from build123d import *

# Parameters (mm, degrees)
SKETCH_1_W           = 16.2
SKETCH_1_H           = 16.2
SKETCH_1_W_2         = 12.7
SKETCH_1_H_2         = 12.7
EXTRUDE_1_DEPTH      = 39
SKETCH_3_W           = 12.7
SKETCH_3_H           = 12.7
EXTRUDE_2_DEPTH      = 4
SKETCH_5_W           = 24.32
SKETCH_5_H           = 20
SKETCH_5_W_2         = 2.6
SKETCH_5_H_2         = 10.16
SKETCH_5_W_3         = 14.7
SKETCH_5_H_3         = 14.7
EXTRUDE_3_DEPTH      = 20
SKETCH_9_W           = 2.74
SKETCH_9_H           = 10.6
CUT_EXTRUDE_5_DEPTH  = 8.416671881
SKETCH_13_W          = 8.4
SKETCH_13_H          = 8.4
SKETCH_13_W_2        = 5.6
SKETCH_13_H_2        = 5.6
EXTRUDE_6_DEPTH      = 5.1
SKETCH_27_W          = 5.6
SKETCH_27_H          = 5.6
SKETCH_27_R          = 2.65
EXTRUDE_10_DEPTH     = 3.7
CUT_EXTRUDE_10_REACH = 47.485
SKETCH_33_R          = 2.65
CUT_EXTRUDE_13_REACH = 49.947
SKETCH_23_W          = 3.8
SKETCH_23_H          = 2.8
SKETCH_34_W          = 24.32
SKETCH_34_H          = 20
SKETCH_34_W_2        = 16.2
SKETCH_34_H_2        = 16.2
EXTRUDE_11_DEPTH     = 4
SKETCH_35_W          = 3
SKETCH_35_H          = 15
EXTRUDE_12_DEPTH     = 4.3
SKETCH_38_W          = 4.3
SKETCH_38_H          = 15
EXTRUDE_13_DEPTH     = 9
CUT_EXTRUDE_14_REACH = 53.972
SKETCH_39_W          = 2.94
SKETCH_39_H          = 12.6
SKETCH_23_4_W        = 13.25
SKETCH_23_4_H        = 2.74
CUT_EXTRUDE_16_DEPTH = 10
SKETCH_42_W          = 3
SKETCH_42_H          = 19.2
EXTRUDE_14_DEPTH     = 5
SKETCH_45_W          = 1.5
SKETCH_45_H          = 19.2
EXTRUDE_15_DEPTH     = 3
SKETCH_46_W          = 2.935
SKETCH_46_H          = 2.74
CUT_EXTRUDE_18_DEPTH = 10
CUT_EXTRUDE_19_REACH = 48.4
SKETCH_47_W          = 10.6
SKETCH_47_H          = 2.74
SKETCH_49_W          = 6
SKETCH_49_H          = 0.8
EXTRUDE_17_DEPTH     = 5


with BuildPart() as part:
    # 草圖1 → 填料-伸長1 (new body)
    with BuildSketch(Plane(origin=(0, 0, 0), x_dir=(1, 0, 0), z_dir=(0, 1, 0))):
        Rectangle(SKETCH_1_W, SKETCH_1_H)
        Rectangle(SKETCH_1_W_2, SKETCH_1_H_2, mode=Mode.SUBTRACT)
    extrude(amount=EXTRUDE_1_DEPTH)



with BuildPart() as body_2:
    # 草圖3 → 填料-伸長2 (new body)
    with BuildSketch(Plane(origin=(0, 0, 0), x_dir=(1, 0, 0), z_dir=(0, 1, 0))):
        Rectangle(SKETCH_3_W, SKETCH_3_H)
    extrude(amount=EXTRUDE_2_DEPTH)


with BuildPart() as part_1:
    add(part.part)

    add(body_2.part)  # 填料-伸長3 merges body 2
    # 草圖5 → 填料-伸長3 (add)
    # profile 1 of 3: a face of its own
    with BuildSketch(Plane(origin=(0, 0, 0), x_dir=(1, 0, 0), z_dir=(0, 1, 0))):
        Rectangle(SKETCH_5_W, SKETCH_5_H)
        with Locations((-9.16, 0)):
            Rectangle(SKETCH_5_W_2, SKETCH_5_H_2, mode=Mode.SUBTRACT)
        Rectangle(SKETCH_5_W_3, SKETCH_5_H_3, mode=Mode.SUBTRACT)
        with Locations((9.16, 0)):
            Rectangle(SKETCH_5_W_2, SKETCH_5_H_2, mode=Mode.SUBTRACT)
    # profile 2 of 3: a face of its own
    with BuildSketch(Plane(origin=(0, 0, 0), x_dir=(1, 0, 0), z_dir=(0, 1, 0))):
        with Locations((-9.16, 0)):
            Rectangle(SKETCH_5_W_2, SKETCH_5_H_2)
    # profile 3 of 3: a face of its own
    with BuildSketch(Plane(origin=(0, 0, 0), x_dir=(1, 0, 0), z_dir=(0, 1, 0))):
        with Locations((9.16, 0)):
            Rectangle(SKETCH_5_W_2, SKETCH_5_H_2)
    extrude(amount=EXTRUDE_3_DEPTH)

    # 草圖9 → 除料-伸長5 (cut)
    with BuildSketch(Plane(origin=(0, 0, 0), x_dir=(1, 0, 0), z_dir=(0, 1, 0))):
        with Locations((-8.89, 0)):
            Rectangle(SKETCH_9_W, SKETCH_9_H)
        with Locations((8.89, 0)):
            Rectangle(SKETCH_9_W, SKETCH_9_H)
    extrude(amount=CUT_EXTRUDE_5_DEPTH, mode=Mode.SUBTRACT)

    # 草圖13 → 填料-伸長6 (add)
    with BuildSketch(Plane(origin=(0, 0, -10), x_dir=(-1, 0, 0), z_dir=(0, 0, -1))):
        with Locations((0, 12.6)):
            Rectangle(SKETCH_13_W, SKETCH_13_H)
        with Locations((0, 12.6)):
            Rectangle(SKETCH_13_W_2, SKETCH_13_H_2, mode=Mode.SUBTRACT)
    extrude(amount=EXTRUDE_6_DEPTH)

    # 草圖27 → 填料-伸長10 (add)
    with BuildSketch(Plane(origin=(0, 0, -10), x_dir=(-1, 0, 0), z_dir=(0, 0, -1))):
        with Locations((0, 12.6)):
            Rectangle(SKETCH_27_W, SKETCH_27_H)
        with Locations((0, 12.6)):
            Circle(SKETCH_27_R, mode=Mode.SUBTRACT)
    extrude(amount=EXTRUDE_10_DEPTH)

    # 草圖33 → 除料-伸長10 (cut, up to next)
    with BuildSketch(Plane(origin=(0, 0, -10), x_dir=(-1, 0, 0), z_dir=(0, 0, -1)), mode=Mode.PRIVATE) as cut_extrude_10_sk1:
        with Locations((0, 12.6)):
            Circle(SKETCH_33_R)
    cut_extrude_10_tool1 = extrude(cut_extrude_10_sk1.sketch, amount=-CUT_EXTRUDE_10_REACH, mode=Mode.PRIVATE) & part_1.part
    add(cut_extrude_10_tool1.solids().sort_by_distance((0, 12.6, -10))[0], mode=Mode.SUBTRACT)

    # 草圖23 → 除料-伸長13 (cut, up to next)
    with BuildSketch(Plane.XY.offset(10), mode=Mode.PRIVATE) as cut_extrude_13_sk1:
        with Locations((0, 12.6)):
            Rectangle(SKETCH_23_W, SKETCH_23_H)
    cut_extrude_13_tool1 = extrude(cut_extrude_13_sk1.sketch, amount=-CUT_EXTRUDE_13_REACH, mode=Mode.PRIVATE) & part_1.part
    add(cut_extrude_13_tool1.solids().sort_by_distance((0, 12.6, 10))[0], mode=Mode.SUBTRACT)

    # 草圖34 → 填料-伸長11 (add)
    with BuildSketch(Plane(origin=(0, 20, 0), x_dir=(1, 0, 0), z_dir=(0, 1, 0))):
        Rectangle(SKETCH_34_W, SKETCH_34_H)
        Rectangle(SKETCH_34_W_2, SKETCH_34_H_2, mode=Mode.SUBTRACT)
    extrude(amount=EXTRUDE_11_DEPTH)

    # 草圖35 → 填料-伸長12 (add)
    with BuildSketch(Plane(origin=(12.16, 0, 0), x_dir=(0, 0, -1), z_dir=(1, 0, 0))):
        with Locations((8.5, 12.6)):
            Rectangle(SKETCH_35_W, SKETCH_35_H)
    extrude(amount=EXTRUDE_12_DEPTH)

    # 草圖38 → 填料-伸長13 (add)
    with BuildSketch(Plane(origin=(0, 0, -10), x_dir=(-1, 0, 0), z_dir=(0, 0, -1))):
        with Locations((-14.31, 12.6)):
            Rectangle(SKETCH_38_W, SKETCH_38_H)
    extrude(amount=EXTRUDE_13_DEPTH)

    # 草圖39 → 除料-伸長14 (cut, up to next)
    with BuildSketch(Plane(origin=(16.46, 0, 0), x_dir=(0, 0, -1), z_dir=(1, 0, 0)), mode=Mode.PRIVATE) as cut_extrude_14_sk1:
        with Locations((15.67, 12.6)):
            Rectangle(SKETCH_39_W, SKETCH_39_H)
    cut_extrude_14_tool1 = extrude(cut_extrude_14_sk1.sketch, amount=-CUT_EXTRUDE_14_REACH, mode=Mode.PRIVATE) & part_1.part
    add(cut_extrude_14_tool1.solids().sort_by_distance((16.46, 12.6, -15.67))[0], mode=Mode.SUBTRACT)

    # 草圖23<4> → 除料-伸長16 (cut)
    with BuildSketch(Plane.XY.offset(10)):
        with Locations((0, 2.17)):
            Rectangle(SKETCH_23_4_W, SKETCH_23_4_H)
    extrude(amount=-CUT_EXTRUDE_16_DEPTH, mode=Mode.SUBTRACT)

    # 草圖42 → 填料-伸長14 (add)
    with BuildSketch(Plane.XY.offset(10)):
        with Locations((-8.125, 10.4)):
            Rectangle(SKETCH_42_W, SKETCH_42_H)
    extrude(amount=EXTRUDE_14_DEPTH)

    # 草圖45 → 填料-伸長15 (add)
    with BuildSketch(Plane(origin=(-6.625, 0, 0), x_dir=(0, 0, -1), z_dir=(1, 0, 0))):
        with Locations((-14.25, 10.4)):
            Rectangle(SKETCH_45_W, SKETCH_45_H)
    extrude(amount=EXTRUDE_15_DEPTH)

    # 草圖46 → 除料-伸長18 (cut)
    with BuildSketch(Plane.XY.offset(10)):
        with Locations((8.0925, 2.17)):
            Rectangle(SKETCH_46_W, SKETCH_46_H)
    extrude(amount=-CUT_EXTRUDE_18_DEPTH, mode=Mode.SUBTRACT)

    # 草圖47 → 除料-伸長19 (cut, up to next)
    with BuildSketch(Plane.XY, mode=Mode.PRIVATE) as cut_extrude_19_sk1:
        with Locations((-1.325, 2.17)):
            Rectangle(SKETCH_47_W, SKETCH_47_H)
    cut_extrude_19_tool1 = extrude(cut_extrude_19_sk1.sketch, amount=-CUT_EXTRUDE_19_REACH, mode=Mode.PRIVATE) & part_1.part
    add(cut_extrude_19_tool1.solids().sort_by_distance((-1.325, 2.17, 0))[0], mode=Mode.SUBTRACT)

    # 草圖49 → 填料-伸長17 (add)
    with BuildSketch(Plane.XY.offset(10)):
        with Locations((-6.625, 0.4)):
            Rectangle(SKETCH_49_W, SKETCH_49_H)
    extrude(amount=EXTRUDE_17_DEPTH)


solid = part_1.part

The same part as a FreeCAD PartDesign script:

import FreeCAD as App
import Part
import Sketcher
from FreeCAD import Vector
Q = App.Units.Quantity


def add_polygon(sketch, points):
    """Adds a closed chain of lines whose ends are joined by coincident constraints."""
    first, n = sketch.GeometryCount, len(points)
    for a, b in zip(points, points[1:] + points[:1]):
        sketch.addGeometry(Part.LineSegment(App.Vector(*a, 0), App.Vector(*b, 0)), False)
    for i in range(n):
        sketch.addConstraint(Sketcher.Constraint("Coincident", first + i, 2, first + (i + 1) % n, 1))

doc = App.newDocument("Part")
body = doc.addObject("PartDesign::Body", "Body")

sketch1 = doc.addObject("Sketcher::SketchObject", "Sketch")
body.addObject(sketch1)
sketch1.AttachmentSupport = (doc.XZ_Plane, [""])
sketch1.MapMode = "FlatFace"
add_polygon(sketch1, [(-8.1, -8.1), (-8.1, 8.1), (8.1, 8.1), (8.1, -8.1)])
add_polygon(sketch1, [(6.35, 6.35), (-6.35, 6.35), (-6.35, -6.35), (6.35, -6.35)])
sketch1.addConstraint(Sketcher.Constraint("Vertical", 0))
sketch1.addConstraint(Sketcher.Constraint("Horizontal", 1))
sketch1.addConstraint(Sketcher.Constraint("Vertical", 2))
sketch1.addConstraint(Sketcher.Constraint("Horizontal", 3))
sketch1.addConstraint(Sketcher.Constraint("Horizontal", 4))
sketch1.addConstraint(Sketcher.Constraint("Vertical", 5))
sketch1.addConstraint(Sketcher.Constraint("Horizontal", 6))
sketch1.addConstraint(Sketcher.Constraint("Vertical", 7))
sketch1.addConstraint(Sketcher.Constraint("Symmetric", 0, 2, 2, 2, -1, 1))
sketch1.addConstraint(Sketcher.Constraint("Symmetric", 4, 2, 6, 2, -1, 1))
sketch1.addConstraint(Sketcher.Constraint("Equal", 3, 0))
sketch1.addConstraint(Sketcher.Constraint("Equal", 6, 5))
sketch1.addConstraint(Sketcher.Constraint("DistanceX", 1, 1, 1, 2, Q("16.2 mm")))
sketch1.addConstraint(Sketcher.Constraint("DistanceX", 4, 2, 4, 1, Q("12.7 mm")))
pad1 = doc.addObject("PartDesign::Pad", "Pad")
body.addObject(pad1)
pad1.Profile = sketch1
pad1.Length = 39
pad1.Reversed = True
body2 = doc.addObject("PartDesign::Body", "Body001")

sketch2 = doc.addObject("Sketcher::SketchObject", "Sketch001")
body2.addObject(sketch2)
sketch2.AttachmentSupport = (doc.getObject("XZ_Plane001"), [""])
sketch2.MapMode = "FlatFace"
add_polygon(sketch2, [(-6.35, -6.35), (-6.35, 6.35), (6.35, 6.35), (6.35, -6.35)])
sketch2.addConstraint(Sketcher.Constraint("Vertical", 0))
sketch2.addConstraint(Sketcher.Constraint("Horizontal", 1))
sketch2.addConstraint(Sketcher.Constraint("Vertical", 2))
sketch2.addConstraint(Sketcher.Constraint("Horizontal", 3))
sketch2.addConstraint(Sketcher.Constraint("Symmetric", 0, 2, 2, 2, -1, 1))
sketch2.addConstraint(Sketcher.Constraint("Equal", 3, 0))
sketch2.addConstraint(Sketcher.Constraint("DistanceX", 1, 1, 1, 2, Q("12.7 mm")))
pad2 = doc.addObject("PartDesign::Pad", "Pad001")
body2.addObject(pad2)
pad2.Profile = sketch2
pad2.Length = 4
pad2.Reversed = True
doc.recompute()

boolean = doc.addObject("PartDesign::Boolean", "Boolean")
body.addObject(boolean)
boolean.Type = "Fuse"
boolean.addObjects([body2])

sketch3 = doc.addObject("Sketcher::SketchObject", "Sketch002")
body.addObject(sketch3)
sketch3.AttachmentSupport = (doc.XZ_Plane, [""])
sketch3.MapMode = "FlatFace"
add_polygon(sketch3, [(-12.16, -10), (-12.16, 10), (12.16, 10), (12.16, -10)])
add_polygon(sketch3, [(7.35, 7.35), (-7.35, 7.35), (-7.35, -7.35), (7.35, -7.35)])
sketch3.addConstraint(Sketcher.Constraint("Vertical", 0))
sketch3.addConstraint(Sketcher.Constraint("Horizontal", 1))
sketch3.addConstraint(Sketcher.Constraint("Vertical", 2))
sketch3.addConstraint(Sketcher.Constraint("Horizontal", 3))
sketch3.addConstraint(Sketcher.Constraint("Horizontal", 4))
sketch3.addConstraint(Sketcher.Constraint("Vertical", 5))
sketch3.addConstraint(Sketcher.Constraint("Horizontal", 6))
sketch3.addConstraint(Sketcher.Constraint("Vertical", 7))
sketch3.addConstraint(Sketcher.Constraint("Symmetric", 0, 2, 2, 2, -1, 1))
sketch3.addConstraint(Sketcher.Constraint("Symmetric", 4, 2, 6, 2, -1, 1))
sketch3.addConstraint(Sketcher.Constraint("Equal", 6, 5))
sketch3.addConstraint(Sketcher.Constraint("DistanceY", 0, 1, 0, 2, Q("20 mm")))
sketch3.addConstraint(Sketcher.Constraint("DistanceX", 4, 2, 4, 1, Q("14.7 mm")))
sketch3.addConstraint(Sketcher.Constraint("DistanceX", 1, 1, 1, 2, Q("24.32 mm")))
pad3 = doc.addObject("PartDesign::Pad", "Pad002")
body.addObject(pad3)
pad3.Profile = sketch3
pad3.Length = 20
pad3.Reversed = True

sketch4 = doc.addObject("Sketcher::SketchObject", "Sketch003")
body.addObject(sketch4)
sketch4.AttachmentSupport = (doc.XZ_Plane, [""])
sketch4.MapMode = "FlatFace"
add_polygon(sketch4, [(-10.26, -5.3), (-10.26, 5.3), (-7.52, 5.3), (-7.52, -5.3)])
add_polygon(sketch4, [(7.52, -5.3), (7.52, 5.3), (10.26, 5.3), (10.26, -5.3)])
sketch4.addConstraint(Sketcher.Constraint("Vertical", 0))
sketch4.addConstraint(Sketcher.Constraint("Horizontal", 1))
sketch4.addConstraint(Sketcher.Constraint("Vertical", 2))
sketch4.addConstraint(Sketcher.Constraint("Horizontal", 3))
sketch4.addConstraint(Sketcher.Constraint("Vertical", 4))
sketch4.addConstraint(Sketcher.Constraint("Horizontal", 5))
sketch4.addConstraint(Sketcher.Constraint("Vertical", 6))
sketch4.addConstraint(Sketcher.Constraint("Horizontal", 7))
sketch4.addConstraint(Sketcher.Constraint("Symmetric", 2, 2, 4, 2, -1, 1))
sketch4.addConstraint(Sketcher.Constraint("Symmetric", 0, 2, 6, 2, -1, 1))
sketch4.addConstraint(Sketcher.Constraint("Horizontal", 1, 2, 4, 2))
sketch4.addConstraint(Sketcher.Constraint("DistanceY", 0, 1, 0, 2, Q("10.6 mm")))
sketch4.addConstraint(Sketcher.Constraint("DistanceX", 1, 1, 1, 2, Q("2.74 mm")))
sketch4.addConstraint(Sketcher.Constraint("DistanceX", 0, 2, -1, 1, Q("10.26 mm")))
pocket1 = doc.addObject("PartDesign::Pocket", "Pocket")
body.addObject(pocket1)
pocket1.Profile = sketch4
pocket1.Length = 8.416672

sketch5 = doc.addObject("Sketcher::SketchObject", "Sketch004")
body.addObject(sketch5)
sketch5.AttachmentSupport = (doc.XY_Plane, [""])
sketch5.MapMode = "FlatFace"
sketch5.AttachmentOffset = App.Placement(Vector(0, 0, -10), App.Rotation())
add_polygon(sketch5, [(4.2, 16.8), (4.2, 8.4), (-4.2, 8.4), (-4.2, 16.8)])
add_polygon(sketch5, [(-2.8, 9.8), (2.8, 9.8), (2.8, 15.4), (-2.8, 15.4)])
sketch5.addConstraint(Sketcher.Constraint("Vertical", 0))
sketch5.addConstraint(Sketcher.Constraint("Horizontal", 1))
sketch5.addConstraint(Sketcher.Constraint("Vertical", 2))
sketch5.addConstraint(Sketcher.Constraint("Horizontal", 3))
sketch5.addConstraint(Sketcher.Constraint("Horizontal", 4))
sketch5.addConstraint(Sketcher.Constraint("Vertical", 5))
sketch5.addConstraint(Sketcher.Constraint("Horizontal", 6))
sketch5.addConstraint(Sketcher.Constraint("Vertical", 7))
sketch5.addConstraint(Sketcher.Constraint("Equal", 3, 0))
sketch5.addConstraint(Sketcher.Constraint("Equal", 6, 5))
sketch5.addConstraint(Sketcher.Constraint("DistanceX", 1, 2, 1, 1, Q("8.4 mm")))
sketch5.addConstraint(Sketcher.Constraint("DistanceX", 4, 1, 4, 2, Q("5.6 mm")))
sketch5.addConstraint(Sketcher.Constraint("DistanceX", 1, 2, 4, 2, Q("7 mm")))
sketch5.addConstraint(Sketcher.Constraint("DistanceY", 4, 2, 3, 2, Q("7 mm")))
sketch5.addConstraint(Sketcher.Constraint("DistanceX", -1, 1, 0, 2, Q("4.2 mm")))
sketch5.addConstraint(Sketcher.Constraint("DistanceY", -1, 1, 0, 2, Q("8.4 mm")))
pad4 = doc.addObject("PartDesign::Pad", "Pad003")
body.addObject(pad4)
pad4.Profile = sketch5
pad4.Length = 5.1
pad4.Reversed = True

sketch6 = doc.addObject("Sketcher::SketchObject", "Sketch005")
body.addObject(sketch6)
sketch6.AttachmentSupport = (doc.XY_Plane, [""])
sketch6.MapMode = "FlatFace"
sketch6.AttachmentOffset = App.Placement(Vector(0, 0, -10), App.Rotation())
add_polygon(sketch6, [(2.8, 15.4), (2.8, 9.8), (-2.8, 9.8), (-2.8, 15.4)])
sketch6.addGeometry(Part.Circle(Vector(0, 12.6, 0), Vector(0, 0, 1), 2.65), False)
sketch6.addConstraint(Sketcher.Constraint("Vertical", 0))
sketch6.addConstraint(Sketcher.Constraint("Horizontal", 1))
sketch6.addConstraint(Sketcher.Constraint("Vertical", 2))
sketch6.addConstraint(Sketcher.Constraint("Horizontal", 3))
sketch6.addConstraint(Sketcher.Constraint("PointOnObject", 4, 3, -2))
sketch6.addConstraint(Sketcher.Constraint("Equal", 3, 0))
sketch6.addConstraint(Sketcher.Constraint("Diameter", 4, Q("5.3 mm")))
sketch6.addConstraint(Sketcher.Constraint("DistanceX", 1, 2, 1, 1, Q("5.6 mm")))
sketch6.addConstraint(Sketcher.Constraint("DistanceY", -1, 1, 4, 3, Q("12.6 mm")))
sketch6.addConstraint(Sketcher.Constraint("DistanceX", -1, 1, 0, 2, Q("2.8 mm")))
sketch6.addConstraint(Sketcher.Constraint("DistanceY", -1, 1, 0, 2, Q("9.8 mm")))
pad5 = doc.addObject("PartDesign::Pad", "Pad004")
body.addObject(pad5)
pad5.Profile = sketch6
pad5.Length = 3.7
pad5.Reversed = True

sketch7 = doc.addObject("Sketcher::SketchObject", "Sketch006")
body.addObject(sketch7)
sketch7.AttachmentSupport = (doc.XY_Plane, [""])
sketch7.MapMode = "FlatFace"
sketch7.AttachmentOffset = App.Placement(Vector(0, 0, -10), App.Rotation())
sketch7.addGeometry(Part.Circle(Vector(0, 12.6, 0), Vector(0, 0, 1), 2.65), False)
sketch7.addConstraint(Sketcher.Constraint("PointOnObject", 0, 3, -2))
sketch7.addConstraint(Sketcher.Constraint("Diameter", 0, Q("5.3 mm")))
sketch7.addConstraint(Sketcher.Constraint("DistanceY", -1, 1, 0, 3, Q("12.6 mm")))
pocket2 = doc.addObject("PartDesign::Pocket", "Pocket001")
body.addObject(pocket2)
pocket2.Profile = sketch7
pocket2.Type = "UpToFirst"
pocket2.Reversed = True

sketch8 = doc.addObject("Sketcher::SketchObject", "Sketch007")
body.addObject(sketch8)
sketch8.AttachmentSupport = (doc.XY_Plane, [""])
sketch8.MapMode = "FlatFace"
sketch8.AttachmentOffset = App.Placement(Vector(0, 0, 10), App.Rotation())
add_polygon(sketch8, [(-1.9, 14), (-1.9, 11.2), (1.9, 11.2), (1.9, 14)])
sketch8.addConstraint(Sketcher.Constraint("Vertical", 0))
sketch8.addConstraint(Sketcher.Constraint("Horizontal", 1))
sketch8.addConstraint(Sketcher.Constraint("Vertical", 2))
sketch8.addConstraint(Sketcher.Constraint("Horizontal", 3))
sketch8.addConstraint(Sketcher.Constraint("DistanceX", 1, 1, 1, 2, Q("3.8 mm")))
sketch8.addConstraint(Sketcher.Constraint("DistanceY", 0, 2, 0, 1, Q("2.8 mm")))
sketch8.addConstraint(Sketcher.Constraint("DistanceY", -1, 1, 2, 2, Q("14 mm")))
sketch8.addConstraint(Sketcher.Constraint("DistanceX", 0, 2, -1, 1, Q("1.9 mm")))
pocket3 = doc.addObject("PartDesign::Pocket", "Pocket002")
body.addObject(pocket3)
pocket3.Profile = sketch8
pocket3.Type = "UpToFirst"

sketch9 = doc.addObject("Sketcher::SketchObject", "Sketch008")
body.addObject(sketch9)
sketch9.AttachmentSupport = (doc.XZ_Plane, [""])
sketch9.MapMode = "FlatFace"
sketch9.AttachmentOffset = App.Placement(Vector(0, 0, -20), App.Rotation())
add_polygon(sketch9, [(-12.16, -10), (-12.16, 10), (12.16, 10), (12.16, -10)])
add_polygon(sketch9, [(8.1, 8.1), (-8.1, 8.1), (-8.1, -8.1), (8.1, -8.1)])
sketch9.addConstraint(Sketcher.Constraint("Vertical", 0))
sketch9.addConstraint(Sketcher.Constraint("Horizontal", 1))
sketch9.addConstraint(Sketcher.Constraint("Vertical", 2))
sketch9.addConstraint(Sketcher.Constraint("Horizontal", 3))
sketch9.addConstraint(Sketcher.Constraint("Horizontal", 4))
sketch9.addConstraint(Sketcher.Constraint("Vertical", 5))
sketch9.addConstraint(Sketcher.Constraint("Horizontal", 6))
sketch9.addConstraint(Sketcher.Constraint("Vertical", 7))
sketch9.addConstraint(Sketcher.Constraint("Symmetric", 0, 2, 2, 2, -1, 1))
sketch9.addConstraint(Sketcher.Constraint("Symmetric", 4, 2, 6, 2, -1, 1))
sketch9.addConstraint(Sketcher.Constraint("Equal", 6, 5))
sketch9.addConstraint(Sketcher.Constraint("DistanceY", 0, 1, 0, 2, Q("20 mm")))
sketch9.addConstraint(Sketcher.Constraint("DistanceX", 4, 2, 4, 1, Q("16.2 mm")))
sketch9.addConstraint(Sketcher.Constraint("DistanceX", 1, 1, 1, 2, Q("24.32 mm")))
pad6 = doc.addObject("PartDesign::Pad", "Pad005")
body.addObject(pad6)
pad6.Profile = sketch9
pad6.Length = 4
pad6.Reversed = True

sketch10 = doc.addObject("Sketcher::SketchObject", "Sketch009")
body.addObject(sketch10)
sketch10.AttachmentSupport = (doc.YZ_Plane, [""])
sketch10.MapMode = "FlatFace"
sketch10.AttachmentOffset = App.Placement(Vector(0, 0, 12.16), App.Rotation())
add_polygon(sketch10, [(20.1, -7), (5.1, -7), (5.1, -10), (20.1, -10)])
sketch10.addConstraint(Sketcher.Constraint("Horizontal", 0))
sketch10.addConstraint(Sketcher.Constraint("Vertical", 1))
sketch10.addConstraint(Sketcher.Constraint("Horizontal", 2))
sketch10.addConstraint(Sketcher.Constraint("Vertical", 3))
sketch10.addConstraint(Sketcher.Constraint("DistanceX", 0, 2, 0, 1, Q("15 mm")))
sketch10.addConstraint(Sketcher.Constraint("DistanceY", 1, 2, 1, 1, Q("3 mm")))
sketch10.addConstraint(Sketcher.Constraint("DistanceY", 0, 2, -1, 1, Q("7 mm")))
sketch10.addConstraint(Sketcher.Constraint("DistanceX", -1, 1, 0, 2, Q("5.1 mm")))
pad7 = doc.addObject("PartDesign::Pad", "Pad006")
body.addObject(pad7)
pad7.Profile = sketch10
pad7.Length = 4.3

sketch11 = doc.addObject("Sketcher::SketchObject", "Sketch010")
body.addObject(sketch11)
sketch11.AttachmentSupport = (doc.XY_Plane, [""])
sketch11.MapMode = "FlatFace"
sketch11.AttachmentOffset = App.Placement(Vector(0, 0, -10), App.Rotation())
add_polygon(sketch11, [(16.46, 20.1), (16.46, 5.1), (12.16, 5.1), (12.16, 20.1)])
sketch11.addConstraint(Sketcher.Constraint("Vertical", 0))
sketch11.addConstraint(Sketcher.Constraint("Horizontal", 1))
sketch11.addConstraint(Sketcher.Constraint("Vertical", 2))
sketch11.addConstraint(Sketcher.Constraint("Horizontal", 3))
sketch11.addConstraint(Sketcher.Constraint("DistanceY", 0, 2, 0, 1, Q("15 mm")))
sketch11.addConstraint(Sketcher.Constraint("DistanceX", 1, 2, 1, 1, Q("4.3 mm")))
sketch11.addConstraint(Sketcher.Constraint("DistanceY", -1, 1, 0, 2, Q("5.1 mm")))
sketch11.addConstraint(Sketcher.Constraint("DistanceX", -1, 1, 0, 2, Q("16.46 mm")))
pad8 = doc.addObject("PartDesign::Pad", "Pad007")
body.addObject(pad8)
pad8.Profile = sketch11
pad8.Length = 9
pad8.Reversed = True

sketch12 = doc.addObject("Sketcher::SketchObject", "Sketch011")
body.addObject(sketch12)
sketch12.AttachmentSupport = (doc.YZ_Plane, [""])
sketch12.MapMode = "FlatFace"
sketch12.AttachmentOffset = App.Placement(Vector(0, 0, 16.46), App.Rotation())
add_polygon(sketch12, [(18.9, -14.2), (6.3, -14.2), (6.3, -17.14), (18.9, -17.14)])
sketch12.addConstraint(Sketcher.Constraint("Horizontal", 0))
sketch12.addConstraint(Sketcher.Constraint("Vertical", 1))
sketch12.addConstraint(Sketcher.Constraint("Horizontal", 2))
sketch12.addConstraint(Sketcher.Constraint("Vertical", 3))
sketch12.addConstraint(Sketcher.Constraint("DistanceX", 0, 2, 0, 1, Q("12.6 mm")))
sketch12.addConstraint(Sketcher.Constraint("DistanceY", 1, 2, 1, 1, Q("2.94 mm")))
sketch12.addConstraint(Sketcher.Constraint("DistanceX", -1, 1, 0, 2, Q("6.3 mm")))
sketch12.addConstraint(Sketcher.Constraint("DistanceY", 0, 2, -1, 1, Q("14.2 mm")))
pocket4 = doc.addObject("PartDesign::Pocket", "Pocket003")
body.addObject(pocket4)
pocket4.Profile = sketch12
pocket4.Type = "UpToFirst"

sketch13 = doc.addObject("Sketcher::SketchObject", "Sketch012")
body.addObject(sketch13)
sketch13.AttachmentSupport = (doc.XY_Plane, [""])
sketch13.MapMode = "FlatFace"
sketch13.AttachmentOffset = App.Placement(Vector(0, 0, 10), App.Rotation())
add_polygon(sketch13, [(-6.625, 3.54), (-6.625, 0.8), (6.625, 0.8), (6.625, 3.54)])
sketch13.addConstraint(Sketcher.Constraint("Vertical", 0))
sketch13.addConstraint(Sketcher.Constraint("Horizontal", 1))
sketch13.addConstraint(Sketcher.Constraint("Vertical", 2))
sketch13.addConstraint(Sketcher.Constraint("Horizontal", 3))
sketch13.addConstraint(Sketcher.Constraint("DistanceX", 1, 1, 1, 2, Q("13.25 mm")))
sketch13.addConstraint(Sketcher.Constraint("DistanceY", 0, 2, 0, 1, Q("2.74 mm")))
sketch13.addConstraint(Sketcher.Constraint("DistanceY", -1, 1, 0, 2, Q("0.8 mm")))
sketch13.addConstraint(Sketcher.Constraint("DistanceX", 0, 2, -1, 1, Q("6.625 mm")))
pocket5 = doc.addObject("PartDesign::Pocket", "Pocket004")
body.addObject(pocket5)
pocket5.Profile = sketch13
pocket5.Length = 10

sketch14 = doc.addObject("Sketcher::SketchObject", "Sketch013")
body.addObject(sketch14)
sketch14.AttachmentSupport = (doc.XY_Plane, [""])
sketch14.MapMode = "FlatFace"
sketch14.AttachmentOffset = App.Placement(Vector(0, 0, 10), App.Rotation())
add_polygon(sketch14, [(-9.625, 20), (-9.625, 0.8), (-6.625, 0.8), (-6.625, 20)])
sketch14.addConstraint(Sketcher.Constraint("Vertical", 0))
sketch14.addConstraint(Sketcher.Constraint("Horizontal", 1))
sketch14.addConstraint(Sketcher.Constraint("Vertical", 2))
sketch14.addConstraint(Sketcher.Constraint("Horizontal", 3))
sketch14.addConstraint(Sketcher.Constraint("DistanceX", 1, 1, 1, 2, Q("3 mm")))
sketch14.addConstraint(Sketcher.Constraint("DistanceY", 0, 2, 0, 1, Q("19.2 mm")))
sketch14.addConstraint(Sketcher.Constraint("DistanceY", -1, 1, 2, 2, Q("20 mm")))
sketch14.addConstraint(Sketcher.Constraint("DistanceX", 0, 2, -1, 1, Q("9.625 mm")))
pad9 = doc.addObject("PartDesign::Pad", "Pad008")
body.addObject(pad9)
pad9.Profile = sketch14
pad9.Length = 5

sketch15 = doc.addObject("Sketcher::SketchObject", "Sketch014")
body.addObject(sketch15)
sketch15.AttachmentSupport = (doc.YZ_Plane, [""])
sketch15.MapMode = "FlatFace"
sketch15.AttachmentOffset = App.Placement(Vector(0, 0, -6.625), App.Rotation())
add_polygon(sketch15, [(20, 15), (0.8, 15), (0.8, 13.5), (20, 13.5)])
sketch15.addConstraint(Sketcher.Constraint("Horizontal", 0))
sketch15.addConstraint(Sketcher.Constraint("Vertical", 1))
sketch15.addConstraint(Sketcher.Constraint("Horizontal", 2))
sketch15.addConstraint(Sketcher.Constraint("Vertical", 3))
sketch15.addConstraint(Sketcher.Constraint("DistanceX", 0, 2, 0, 1, Q("19.2 mm")))
sketch15.addConstraint(Sketcher.Constraint("DistanceY", 1, 2, 1, 1, Q("1.5 mm")))
sketch15.addConstraint(Sketcher.Constraint("DistanceY", -1, 1, 0, 2, Q("15 mm")))
sketch15.addConstraint(Sketcher.Constraint("DistanceX", -1, 1, 2, 2, Q("20 mm")))
pad10 = doc.addObject("PartDesign::Pad", "Pad009")
body.addObject(pad10)
pad10.Profile = sketch15
pad10.Length = 3

sketch16 = doc.addObject("Sketcher::SketchObject", "Sketch015")
body.addObject(sketch16)
sketch16.AttachmentSupport = (doc.XY_Plane, [""])
sketch16.MapMode = "FlatFace"
sketch16.AttachmentOffset = App.Placement(Vector(0, 0, 10), App.Rotation())
add_polygon(sketch16, [(6.625, 3.54), (6.625, 0.8), (9.56, 0.8), (9.56, 3.54)])
sketch16.addConstraint(Sketcher.Constraint("Vertical", 0))
sketch16.addConstraint(Sketcher.Constraint("Horizontal", 1))
sketch16.addConstraint(Sketcher.Constraint("Vertical", 2))
sketch16.addConstraint(Sketcher.Constraint("Horizontal", 3))
sketch16.addConstraint(Sketcher.Constraint("DistanceY", 0, 2, 0, 1, Q("2.74 mm")))
sketch16.addConstraint(Sketcher.Constraint("DistanceY", -1, 1, 0, 2, Q("0.8 mm")))
sketch16.addConstraint(Sketcher.Constraint("DistanceX", 1, 1, 1, 2, Q("2.935 mm")))
sketch16.addConstraint(Sketcher.Constraint("DistanceX", -1, 1, 1, 2, Q("9.56 mm")))
pocket6 = doc.addObject("PartDesign::Pocket", "Pocket005")
body.addObject(pocket6)
pocket6.Profile = sketch16
pocket6.Length = 10

sketch17 = doc.addObject("Sketcher::SketchObject", "Sketch016")
body.addObject(sketch17)
sketch17.AttachmentSupport = (doc.XY_Plane, [""])
sketch17.MapMode = "FlatFace"
add_polygon(sketch17, [(-6.625, 3.54), (-6.625, 0.8), (3.975, 0.8), (3.975, 3.54)])
sketch17.addConstraint(Sketcher.Constraint("Vertical", 0))
sketch17.addConstraint(Sketcher.Constraint("Horizontal", 1))
sketch17.addConstraint(Sketcher.Constraint("Vertical", 2))
sketch17.addConstraint(Sketcher.Constraint("Horizontal", 3))
sketch17.addConstraint(Sketcher.Constraint("DistanceX", 1, 1, 1, 2, Q("10.6 mm")))
sketch17.addConstraint(Sketcher.Constraint("DistanceY", 0, 2, 0, 1, Q("2.74 mm")))
sketch17.addConstraint(Sketcher.Constraint("DistanceY", -1, 1, 0, 2, Q("0.8 mm")))
sketch17.addConstraint(Sketcher.Constraint("DistanceX", 0, 2, -1, 1, Q("6.625 mm")))
pocket7 = doc.addObject("PartDesign::Pocket", "Pocket006")
body.addObject(pocket7)
pocket7.Profile = sketch17
pocket7.Type = "UpToFirst"

sketch18 = doc.addObject("Sketcher::SketchObject", "Sketch017")
body.addObject(sketch18)
sketch18.AttachmentSupport = (doc.XY_Plane, [""])
sketch18.MapMode = "FlatFace"
sketch18.AttachmentOffset = App.Placement(Vector(0, 0, 10), App.Rotation())
add_polygon(sketch18, [(-9.625, 0.8), (-9.625, 0), (-3.625, 0), (-3.625, 0.8)])
sketch18.addConstraint(Sketcher.Constraint("Vertical", 0))
sketch18.addConstraint(Sketcher.Constraint("Horizontal", 1))
sketch18.addConstraint(Sketcher.Constraint("Vertical", 2))
sketch18.addConstraint(Sketcher.Constraint("Horizontal", 3))
sketch18.addConstraint(Sketcher.Constraint("PointOnObject", 0, 2, -1))
sketch18.addConstraint(Sketcher.Constraint("DistanceX", 1, 1, 1, 2, Q("6 mm")))
sketch18.addConstraint(Sketcher.Constraint("DistanceY", 0, 2, 0, 1, Q("0.8 mm")))
sketch18.addConstraint(Sketcher.Constraint("DistanceX", 0, 2, -1, 1, Q("9.625 mm")))
pad11 = doc.addObject("PartDesign::Pad", "Pad010")
body.addObject(pad11)
pad11.Profile = sketch18
pad11.Length = 5

doc.recompute()
